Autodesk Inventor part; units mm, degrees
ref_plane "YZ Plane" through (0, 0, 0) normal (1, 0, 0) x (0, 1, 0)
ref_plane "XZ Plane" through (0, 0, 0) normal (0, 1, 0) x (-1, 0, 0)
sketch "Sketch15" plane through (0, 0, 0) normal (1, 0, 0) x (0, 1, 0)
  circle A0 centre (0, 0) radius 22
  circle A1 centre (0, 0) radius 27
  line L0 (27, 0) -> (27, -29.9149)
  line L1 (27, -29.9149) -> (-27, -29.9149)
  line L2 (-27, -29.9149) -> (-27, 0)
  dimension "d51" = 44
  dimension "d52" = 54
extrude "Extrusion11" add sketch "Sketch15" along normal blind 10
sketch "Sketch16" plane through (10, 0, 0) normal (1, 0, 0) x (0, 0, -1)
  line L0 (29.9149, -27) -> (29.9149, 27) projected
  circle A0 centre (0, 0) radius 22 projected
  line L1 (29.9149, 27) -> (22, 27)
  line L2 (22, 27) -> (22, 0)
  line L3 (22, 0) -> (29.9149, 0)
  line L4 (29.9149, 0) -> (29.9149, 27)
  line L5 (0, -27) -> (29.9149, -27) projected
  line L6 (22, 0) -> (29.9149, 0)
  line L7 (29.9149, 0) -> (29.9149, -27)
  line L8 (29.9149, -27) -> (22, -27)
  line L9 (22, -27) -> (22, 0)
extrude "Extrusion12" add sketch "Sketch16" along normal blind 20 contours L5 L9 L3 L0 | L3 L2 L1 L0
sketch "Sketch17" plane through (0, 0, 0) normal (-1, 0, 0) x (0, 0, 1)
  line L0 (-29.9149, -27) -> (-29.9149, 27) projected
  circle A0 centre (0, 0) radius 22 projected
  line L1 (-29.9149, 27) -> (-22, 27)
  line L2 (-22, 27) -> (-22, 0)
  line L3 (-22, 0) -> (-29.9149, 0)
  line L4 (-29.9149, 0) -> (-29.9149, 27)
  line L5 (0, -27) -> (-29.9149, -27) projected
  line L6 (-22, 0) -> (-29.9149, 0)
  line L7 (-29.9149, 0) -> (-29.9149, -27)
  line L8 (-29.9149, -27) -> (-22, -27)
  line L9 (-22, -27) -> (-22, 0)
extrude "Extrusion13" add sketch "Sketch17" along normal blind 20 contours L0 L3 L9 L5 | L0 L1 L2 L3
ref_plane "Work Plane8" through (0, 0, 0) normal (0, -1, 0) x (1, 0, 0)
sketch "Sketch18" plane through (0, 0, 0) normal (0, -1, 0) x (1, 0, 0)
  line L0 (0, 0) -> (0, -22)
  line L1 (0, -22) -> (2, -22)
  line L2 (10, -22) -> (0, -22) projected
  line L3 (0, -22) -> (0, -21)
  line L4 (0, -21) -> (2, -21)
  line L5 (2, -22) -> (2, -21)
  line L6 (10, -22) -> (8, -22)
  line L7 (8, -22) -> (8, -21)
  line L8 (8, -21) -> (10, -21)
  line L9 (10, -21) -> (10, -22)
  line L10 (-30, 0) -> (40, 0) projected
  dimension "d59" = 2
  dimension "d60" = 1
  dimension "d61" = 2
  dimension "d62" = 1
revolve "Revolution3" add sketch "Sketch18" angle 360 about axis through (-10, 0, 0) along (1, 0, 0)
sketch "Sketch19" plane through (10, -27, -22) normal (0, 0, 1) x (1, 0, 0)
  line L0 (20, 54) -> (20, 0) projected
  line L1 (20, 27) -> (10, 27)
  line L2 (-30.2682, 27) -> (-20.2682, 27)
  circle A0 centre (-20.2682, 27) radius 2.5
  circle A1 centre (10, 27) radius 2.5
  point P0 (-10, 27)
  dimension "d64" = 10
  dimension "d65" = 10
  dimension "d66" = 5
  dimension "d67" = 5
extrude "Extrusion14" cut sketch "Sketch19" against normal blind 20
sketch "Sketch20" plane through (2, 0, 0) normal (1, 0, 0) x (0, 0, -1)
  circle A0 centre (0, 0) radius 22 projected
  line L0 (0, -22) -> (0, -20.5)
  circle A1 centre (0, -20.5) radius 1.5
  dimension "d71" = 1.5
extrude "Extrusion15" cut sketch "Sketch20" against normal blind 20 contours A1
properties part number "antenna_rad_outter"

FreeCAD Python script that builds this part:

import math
import FreeCAD as App
import Part
import Sketcher
from FreeCAD import Vector
Q = App.Units.Quantity

doc = App.newDocument("Part")
body = doc.addObject("PartDesign::Body", "Body")

# Sketch on YZ plane
sketch1 = doc.addObject("Sketcher::SketchObject", "Sketch")
body.addObject(sketch1)
sketch1.AttachmentSupport = (doc.YZ_Plane, [""])
sketch1.MapMode = "FlatFace"
sketch1.addGeometry(Part.ArcOfCircle(Part.Circle(Vector(0, 0, 0), Vector(0, 0, 1), 27), math.radians(0), math.radians(180)), False)
sketch1.addGeometry(Part.LineSegment(Vector(-27, 0, 0), Vector(-27, -30, 0)), False)
sketch1.addGeometry(Part.LineSegment(Vector(-27, -30, 0), Vector(27, -30, 0)), False)
sketch1.addGeometry(Part.LineSegment(Vector(27, -30, 0), Vector(27, 0, 0)), False)
sketch1.addGeometry(Part.Circle(Vector(0, 0, 0), Vector(0, 0, 1), 22), False)
sketch1.addConstraint(Sketcher.Constraint("Tangent", 0, 2, 1, 1))
sketch1.addConstraint(Sketcher.Constraint("Coincident", 1, 2, 2, 1))
sketch1.addConstraint(Sketcher.Constraint("Coincident", 2, 2, 3, 1))
sketch1.addConstraint(Sketcher.Constraint("Tangent", 3, 2, 0, 1))
sketch1.addConstraint(Sketcher.Constraint("Vertical", 1))
sketch1.addConstraint(Sketcher.Constraint("Horizontal", 2))
sketch1.addConstraint(Sketcher.Constraint("Vertical", 3))
sketch1.addConstraint(Sketcher.Constraint("Coincident", 0, 3, -1, 1))
sketch1.addConstraint(Sketcher.Constraint("Coincident", 4, 3, -1, 1))
sketch1.addConstraint(Sketcher.Constraint("Diameter", 4, Q("44 mm")))
sketch1.addConstraint(Sketcher.Constraint("Radius", 0, Q("27 mm")))
sketch1.addConstraint(Sketcher.Constraint("DistanceY", 1, 2, 1, 1, Q("29.915 mm")))
pad1 = doc.addObject("PartDesign::Pad", "Pad")
body.addObject(pad1)
pad1.Profile = sketch1
pad1.Length = 10

# Sketch on YZ plane
sketch2 = doc.addObject("Sketcher::SketchObject", "Sketch001")
body.addObject(sketch2)
sketch2.AttachmentSupport = (doc.YZ_Plane, [""])
sketch2.MapMode = "FlatFace"
sketch2.AttachmentOffset = App.Placement(Vector(0, 0, 10), App.Rotation())
sketch2.addGeometry(Part.LineSegment(Vector(-27, -22, 0), Vector(-27, -30, 0)), False)
sketch2.addGeometry(Part.LineSegment(Vector(-27, -30, 0), Vector(27, -30, 0)), False)
sketch2.addGeometry(Part.LineSegment(Vector(27, -30, 0), Vector(27, -22, 0)), False)
sketch2.addGeometry(Part.LineSegment(Vector(27, -22, 0), Vector(-27, -22, 0)), False)
sketch2.addConstraint(Sketcher.Constraint("Coincident", 0, 2, 1, 1))
sketch2.addConstraint(Sketcher.Constraint("Coincident", 1, 2, 2, 1))
sketch2.addConstraint(Sketcher.Constraint("Coincident", 2, 2, 3, 1))
sketch2.addConstraint(Sketcher.Constraint("Coincident", 3, 2, 0, 1))
sketch2.addConstraint(Sketcher.Constraint("Vertical", 0))
sketch2.addConstraint(Sketcher.Constraint("Horizontal", 1))
sketch2.addConstraint(Sketcher.Constraint("Vertical", 2))
sketch2.addConstraint(Sketcher.Constraint("Horizontal", 3))
sketch2.addConstraint(Sketcher.Constraint("DistanceX", 1, 1, 1, 2, Q("54 mm")))
sketch2.addConstraint(Sketcher.Constraint("DistanceX", 0, 2, -1, 1, Q("27 mm")))
sketch2.addConstraint(Sketcher.Constraint("DistanceY", 2, 2, -1, 1, Q("22 mm")))
sketch2.addConstraint(Sketcher.Constraint("DistanceY", 0, 2, 0, 1, Q("7.915 mm")))
pad2 = doc.addObject("PartDesign::Pad", "Pad001")
body.addObject(pad2)
pad2.Profile = sketch2
pad2.Length = 20

# Sketch on YZ plane
sketch3 = doc.addObject("Sketcher::SketchObject", "Sketch002")
body.addObject(sketch3)
sketch3.AttachmentSupport = (doc.YZ_Plane, [""])
sketch3.MapMode = "FlatFace"
sketch3.addGeometry(Part.LineSegment(Vector(-27, -30, 0), Vector(-27, -22, 0)), False)
sketch3.addGeometry(Part.LineSegment(Vector(-27, -22, 0), Vector(27, -22, 0)), False)
sketch3.addGeometry(Part.LineSegment(Vector(27, -22, 0), Vector(27, -30, 0)), False)
sketch3.addGeometry(Part.LineSegment(Vector(27, -30, 0), Vector(-27, -30, 0)), False)
sketch3.addConstraint(Sketcher.Constraint("Coincident", 0, 2, 1, 1))
sketch3.addConstraint(Sketcher.Constraint("Coincident", 1, 2, 2, 1))
sketch3.addConstraint(Sketcher.Constraint("Coincident", 2, 2, 3, 1))
sketch3.addConstraint(Sketcher.Constraint("Coincident", 3, 2, 0, 1))
sketch3.addConstraint(Sketcher.Constraint("Vertical", 0))
sketch3.addConstraint(Sketcher.Constraint("Horizontal", 1))
sketch3.addConstraint(Sketcher.Constraint("Vertical", 2))
sketch3.addConstraint(Sketcher.Constraint("Horizontal", 3))
sketch3.addConstraint(Sketcher.Constraint("DistanceX", 1, 1, 1, 2, Q("54 mm")))
sketch3.addConstraint(Sketcher.Constraint("DistanceX", 0, 2, -1, 1, Q("27 mm")))
sketch3.addConstraint(Sketcher.Constraint("DistanceY", 0, 2, -1, 1, Q("22 mm")))
sketch3.addConstraint(Sketcher.Constraint("DistanceY", 0, 1, 0, 2, Q("7.915 mm")))
pad3 = doc.addObject("PartDesign::Pad", "Pad002")
body.addObject(pad3)
pad3.Profile = sketch3
pad3.Length = 20
pad3.Reversed = True

# Sketch on XZ plane
sketch4 = doc.addObject("Sketcher::SketchObject", "Sketch003")
body.addObject(sketch4)
sketch4.AttachmentSupport = (doc.XZ_Plane, [""])
sketch4.MapMode = "FlatFace"
sketch4.addGeometry(Part.LineSegment(Vector(2, -21, 0), Vector(0, -21, 0)), False)
sketch4.addGeometry(Part.LineSegment(Vector(0, -21, 0), Vector(0, -22, 0)), False)
sketch4.addGeometry(Part.LineSegment(Vector(0, -22, 0), Vector(2, -22, 0)), False)
sketch4.addGeometry(Part.LineSegment(Vector(2, -22, 0), Vector(2, -21, 0)), False)
sketch4.addGeometry(Part.LineSegment(Vector(8, -21, 0), Vector(8, -22, 0)), False)
sketch4.addGeometry(Part.LineSegment(Vector(8, -22, 0), Vector(10, -22, 0)), False)
sketch4.addGeometry(Part.LineSegment(Vector(10, -22, 0), Vector(10, -21, 0)), False)
sketch4.addGeometry(Part.LineSegment(Vector(10, -21, 0), Vector(8, -21, 0)), False)
sketch4.addConstraint(Sketcher.Constraint("Coincident", 0, 2, 1, 1))
sketch4.addConstraint(Sketcher.Constraint("Coincident", 1, 2, 2, 1))
sketch4.addConstraint(Sketcher.Constraint("Coincident", 2, 2, 3, 1))
sketch4.addConstraint(Sketcher.Constraint("Coincident", 3, 2, 0, 1))
sketch4.addConstraint(Sketcher.Constraint("Coincident", 4, 2, 5, 1))
sketch4.addConstraint(Sketcher.Constraint("Coincident", 5, 2, 6, 1))
sketch4.addConstraint(Sketcher.Constraint("Coincident", 6, 2, 7, 1))
sketch4.addConstraint(Sketcher.Constraint("Coincident", 7, 2, 4, 1))
sketch4.addConstraint(Sketcher.Constraint("Horizontal", 0))
sketch4.addConstraint(Sketcher.Constraint("Vertical", 1))
sketch4.addConstraint(Sketcher.Constraint("Horizontal", 2))
sketch4.addConstraint(Sketcher.Constraint("Vertical", 3))
sketch4.addConstraint(Sketcher.Constraint("Vertical", 4))
sketch4.addConstraint(Sketcher.Constraint("Horizontal", 5))
sketch4.addConstraint(Sketcher.Constraint("Vertical", 6))
sketch4.addConstraint(Sketcher.Constraint("Horizontal", 7))
sketch4.addConstraint(Sketcher.Constraint("PointOnObject", 0, 2, -2))
sketch4.addConstraint(Sketcher.Constraint("Horizontal", 2, 2, 4, 2))
sketch4.addConstraint(Sketcher.Constraint("Horizontal", 3, 2, 6, 2))
sketch4.addConstraint(Sketcher.Constraint("Equal", 2, 5))
sketch4.addConstraint(Sketcher.Constraint("DistanceX", 0, 2, 0, 1, Q("2 mm")))
sketch4.addConstraint(Sketcher.Constraint("DistanceY", 1, 2, 1, 1, Q("1 mm")))
sketch4.addConstraint(Sketcher.Constraint("DistanceY", 0, 2, -1, 1, Q("21 mm")))
sketch4.addConstraint(Sketcher.Constraint("DistanceX", -1, 1, 4, 2, Q("8 mm")))
revolution = doc.addObject("PartDesign::Revolution", "Revolution")
body.addObject(revolution)
revolution.Profile = sketch4
revolution.ReferenceAxis = (sketch4, ["H_Axis"])
revolution.Angle = 360

# Sketch on XY plane
sketch5 = doc.addObject("Sketcher::SketchObject", "Sketch004")
body.addObject(sketch5)
sketch5.AttachmentSupport = (doc.XY_Plane, [""])
sketch5.MapMode = "FlatFace"
sketch5.AttachmentOffset = App.Placement(Vector(0, 0, -22), App.Rotation())
sketch5.addGeometry(Part.Circle(Vector(-10.3, 0, 0), Vector(0, 0, 1), 2.5), False)
sketch5.addGeometry(Part.Circle(Vector(20, 0, 0), Vector(0, 0, 1), 2.5), False)
sketch5.addConstraint(Sketcher.Constraint("Equal", 0, 1))
sketch5.addConstraint(Sketcher.Constraint("PointOnObject", 0, 3, -1))
sketch5.addConstraint(Sketcher.Constraint("PointOnObject", 1, 3, -1))
sketch5.addConstraint(Sketcher.Constraint("Diameter", 0, Q("5 mm")))
sketch5.addConstraint(Sketcher.Constraint("DistanceX", -1, 1, 1, 3, Q("20 mm")))
sketch5.addConstraint(Sketcher.Constraint("DistanceX", 0, 3, -1, 1, Q("10.2682 mm")))
pocket1 = doc.addObject("PartDesign::Pocket", "Pocket")
body.addObject(pocket1)
pocket1.Profile = sketch5
pocket1.Length = 20

# Sketch on YZ plane
sketch6 = doc.addObject("Sketcher::SketchObject", "Sketch005")
body.addObject(sketch6)
sketch6.AttachmentSupport = (doc.YZ_Plane, [""])
sketch6.MapMode = "FlatFace"
sketch6.AttachmentOffset = App.Placement(Vector(0, 0, 2), App.Rotation())
sketch6.addGeometry(Part.Circle(Vector(-20.5, 0, 0), Vector(0, 0, 1), 1.5), False)
sketch6.addConstraint(Sketcher.Constraint("PointOnObject", 0, 3, -1))
sketch6.addConstraint(Sketcher.Constraint("Diameter", 0, Q("3 mm")))
sketch6.addConstraint(Sketcher.Constraint("DistanceX", 0, 3, -1, 1, Q("20.5 mm")))
pocket2 = doc.addObject("PartDesign::Pocket", "Pocket001")
body.addObject(pocket2)
pocket2.Profile = sketch6
pocket2.Length = 20

doc.recompute()
